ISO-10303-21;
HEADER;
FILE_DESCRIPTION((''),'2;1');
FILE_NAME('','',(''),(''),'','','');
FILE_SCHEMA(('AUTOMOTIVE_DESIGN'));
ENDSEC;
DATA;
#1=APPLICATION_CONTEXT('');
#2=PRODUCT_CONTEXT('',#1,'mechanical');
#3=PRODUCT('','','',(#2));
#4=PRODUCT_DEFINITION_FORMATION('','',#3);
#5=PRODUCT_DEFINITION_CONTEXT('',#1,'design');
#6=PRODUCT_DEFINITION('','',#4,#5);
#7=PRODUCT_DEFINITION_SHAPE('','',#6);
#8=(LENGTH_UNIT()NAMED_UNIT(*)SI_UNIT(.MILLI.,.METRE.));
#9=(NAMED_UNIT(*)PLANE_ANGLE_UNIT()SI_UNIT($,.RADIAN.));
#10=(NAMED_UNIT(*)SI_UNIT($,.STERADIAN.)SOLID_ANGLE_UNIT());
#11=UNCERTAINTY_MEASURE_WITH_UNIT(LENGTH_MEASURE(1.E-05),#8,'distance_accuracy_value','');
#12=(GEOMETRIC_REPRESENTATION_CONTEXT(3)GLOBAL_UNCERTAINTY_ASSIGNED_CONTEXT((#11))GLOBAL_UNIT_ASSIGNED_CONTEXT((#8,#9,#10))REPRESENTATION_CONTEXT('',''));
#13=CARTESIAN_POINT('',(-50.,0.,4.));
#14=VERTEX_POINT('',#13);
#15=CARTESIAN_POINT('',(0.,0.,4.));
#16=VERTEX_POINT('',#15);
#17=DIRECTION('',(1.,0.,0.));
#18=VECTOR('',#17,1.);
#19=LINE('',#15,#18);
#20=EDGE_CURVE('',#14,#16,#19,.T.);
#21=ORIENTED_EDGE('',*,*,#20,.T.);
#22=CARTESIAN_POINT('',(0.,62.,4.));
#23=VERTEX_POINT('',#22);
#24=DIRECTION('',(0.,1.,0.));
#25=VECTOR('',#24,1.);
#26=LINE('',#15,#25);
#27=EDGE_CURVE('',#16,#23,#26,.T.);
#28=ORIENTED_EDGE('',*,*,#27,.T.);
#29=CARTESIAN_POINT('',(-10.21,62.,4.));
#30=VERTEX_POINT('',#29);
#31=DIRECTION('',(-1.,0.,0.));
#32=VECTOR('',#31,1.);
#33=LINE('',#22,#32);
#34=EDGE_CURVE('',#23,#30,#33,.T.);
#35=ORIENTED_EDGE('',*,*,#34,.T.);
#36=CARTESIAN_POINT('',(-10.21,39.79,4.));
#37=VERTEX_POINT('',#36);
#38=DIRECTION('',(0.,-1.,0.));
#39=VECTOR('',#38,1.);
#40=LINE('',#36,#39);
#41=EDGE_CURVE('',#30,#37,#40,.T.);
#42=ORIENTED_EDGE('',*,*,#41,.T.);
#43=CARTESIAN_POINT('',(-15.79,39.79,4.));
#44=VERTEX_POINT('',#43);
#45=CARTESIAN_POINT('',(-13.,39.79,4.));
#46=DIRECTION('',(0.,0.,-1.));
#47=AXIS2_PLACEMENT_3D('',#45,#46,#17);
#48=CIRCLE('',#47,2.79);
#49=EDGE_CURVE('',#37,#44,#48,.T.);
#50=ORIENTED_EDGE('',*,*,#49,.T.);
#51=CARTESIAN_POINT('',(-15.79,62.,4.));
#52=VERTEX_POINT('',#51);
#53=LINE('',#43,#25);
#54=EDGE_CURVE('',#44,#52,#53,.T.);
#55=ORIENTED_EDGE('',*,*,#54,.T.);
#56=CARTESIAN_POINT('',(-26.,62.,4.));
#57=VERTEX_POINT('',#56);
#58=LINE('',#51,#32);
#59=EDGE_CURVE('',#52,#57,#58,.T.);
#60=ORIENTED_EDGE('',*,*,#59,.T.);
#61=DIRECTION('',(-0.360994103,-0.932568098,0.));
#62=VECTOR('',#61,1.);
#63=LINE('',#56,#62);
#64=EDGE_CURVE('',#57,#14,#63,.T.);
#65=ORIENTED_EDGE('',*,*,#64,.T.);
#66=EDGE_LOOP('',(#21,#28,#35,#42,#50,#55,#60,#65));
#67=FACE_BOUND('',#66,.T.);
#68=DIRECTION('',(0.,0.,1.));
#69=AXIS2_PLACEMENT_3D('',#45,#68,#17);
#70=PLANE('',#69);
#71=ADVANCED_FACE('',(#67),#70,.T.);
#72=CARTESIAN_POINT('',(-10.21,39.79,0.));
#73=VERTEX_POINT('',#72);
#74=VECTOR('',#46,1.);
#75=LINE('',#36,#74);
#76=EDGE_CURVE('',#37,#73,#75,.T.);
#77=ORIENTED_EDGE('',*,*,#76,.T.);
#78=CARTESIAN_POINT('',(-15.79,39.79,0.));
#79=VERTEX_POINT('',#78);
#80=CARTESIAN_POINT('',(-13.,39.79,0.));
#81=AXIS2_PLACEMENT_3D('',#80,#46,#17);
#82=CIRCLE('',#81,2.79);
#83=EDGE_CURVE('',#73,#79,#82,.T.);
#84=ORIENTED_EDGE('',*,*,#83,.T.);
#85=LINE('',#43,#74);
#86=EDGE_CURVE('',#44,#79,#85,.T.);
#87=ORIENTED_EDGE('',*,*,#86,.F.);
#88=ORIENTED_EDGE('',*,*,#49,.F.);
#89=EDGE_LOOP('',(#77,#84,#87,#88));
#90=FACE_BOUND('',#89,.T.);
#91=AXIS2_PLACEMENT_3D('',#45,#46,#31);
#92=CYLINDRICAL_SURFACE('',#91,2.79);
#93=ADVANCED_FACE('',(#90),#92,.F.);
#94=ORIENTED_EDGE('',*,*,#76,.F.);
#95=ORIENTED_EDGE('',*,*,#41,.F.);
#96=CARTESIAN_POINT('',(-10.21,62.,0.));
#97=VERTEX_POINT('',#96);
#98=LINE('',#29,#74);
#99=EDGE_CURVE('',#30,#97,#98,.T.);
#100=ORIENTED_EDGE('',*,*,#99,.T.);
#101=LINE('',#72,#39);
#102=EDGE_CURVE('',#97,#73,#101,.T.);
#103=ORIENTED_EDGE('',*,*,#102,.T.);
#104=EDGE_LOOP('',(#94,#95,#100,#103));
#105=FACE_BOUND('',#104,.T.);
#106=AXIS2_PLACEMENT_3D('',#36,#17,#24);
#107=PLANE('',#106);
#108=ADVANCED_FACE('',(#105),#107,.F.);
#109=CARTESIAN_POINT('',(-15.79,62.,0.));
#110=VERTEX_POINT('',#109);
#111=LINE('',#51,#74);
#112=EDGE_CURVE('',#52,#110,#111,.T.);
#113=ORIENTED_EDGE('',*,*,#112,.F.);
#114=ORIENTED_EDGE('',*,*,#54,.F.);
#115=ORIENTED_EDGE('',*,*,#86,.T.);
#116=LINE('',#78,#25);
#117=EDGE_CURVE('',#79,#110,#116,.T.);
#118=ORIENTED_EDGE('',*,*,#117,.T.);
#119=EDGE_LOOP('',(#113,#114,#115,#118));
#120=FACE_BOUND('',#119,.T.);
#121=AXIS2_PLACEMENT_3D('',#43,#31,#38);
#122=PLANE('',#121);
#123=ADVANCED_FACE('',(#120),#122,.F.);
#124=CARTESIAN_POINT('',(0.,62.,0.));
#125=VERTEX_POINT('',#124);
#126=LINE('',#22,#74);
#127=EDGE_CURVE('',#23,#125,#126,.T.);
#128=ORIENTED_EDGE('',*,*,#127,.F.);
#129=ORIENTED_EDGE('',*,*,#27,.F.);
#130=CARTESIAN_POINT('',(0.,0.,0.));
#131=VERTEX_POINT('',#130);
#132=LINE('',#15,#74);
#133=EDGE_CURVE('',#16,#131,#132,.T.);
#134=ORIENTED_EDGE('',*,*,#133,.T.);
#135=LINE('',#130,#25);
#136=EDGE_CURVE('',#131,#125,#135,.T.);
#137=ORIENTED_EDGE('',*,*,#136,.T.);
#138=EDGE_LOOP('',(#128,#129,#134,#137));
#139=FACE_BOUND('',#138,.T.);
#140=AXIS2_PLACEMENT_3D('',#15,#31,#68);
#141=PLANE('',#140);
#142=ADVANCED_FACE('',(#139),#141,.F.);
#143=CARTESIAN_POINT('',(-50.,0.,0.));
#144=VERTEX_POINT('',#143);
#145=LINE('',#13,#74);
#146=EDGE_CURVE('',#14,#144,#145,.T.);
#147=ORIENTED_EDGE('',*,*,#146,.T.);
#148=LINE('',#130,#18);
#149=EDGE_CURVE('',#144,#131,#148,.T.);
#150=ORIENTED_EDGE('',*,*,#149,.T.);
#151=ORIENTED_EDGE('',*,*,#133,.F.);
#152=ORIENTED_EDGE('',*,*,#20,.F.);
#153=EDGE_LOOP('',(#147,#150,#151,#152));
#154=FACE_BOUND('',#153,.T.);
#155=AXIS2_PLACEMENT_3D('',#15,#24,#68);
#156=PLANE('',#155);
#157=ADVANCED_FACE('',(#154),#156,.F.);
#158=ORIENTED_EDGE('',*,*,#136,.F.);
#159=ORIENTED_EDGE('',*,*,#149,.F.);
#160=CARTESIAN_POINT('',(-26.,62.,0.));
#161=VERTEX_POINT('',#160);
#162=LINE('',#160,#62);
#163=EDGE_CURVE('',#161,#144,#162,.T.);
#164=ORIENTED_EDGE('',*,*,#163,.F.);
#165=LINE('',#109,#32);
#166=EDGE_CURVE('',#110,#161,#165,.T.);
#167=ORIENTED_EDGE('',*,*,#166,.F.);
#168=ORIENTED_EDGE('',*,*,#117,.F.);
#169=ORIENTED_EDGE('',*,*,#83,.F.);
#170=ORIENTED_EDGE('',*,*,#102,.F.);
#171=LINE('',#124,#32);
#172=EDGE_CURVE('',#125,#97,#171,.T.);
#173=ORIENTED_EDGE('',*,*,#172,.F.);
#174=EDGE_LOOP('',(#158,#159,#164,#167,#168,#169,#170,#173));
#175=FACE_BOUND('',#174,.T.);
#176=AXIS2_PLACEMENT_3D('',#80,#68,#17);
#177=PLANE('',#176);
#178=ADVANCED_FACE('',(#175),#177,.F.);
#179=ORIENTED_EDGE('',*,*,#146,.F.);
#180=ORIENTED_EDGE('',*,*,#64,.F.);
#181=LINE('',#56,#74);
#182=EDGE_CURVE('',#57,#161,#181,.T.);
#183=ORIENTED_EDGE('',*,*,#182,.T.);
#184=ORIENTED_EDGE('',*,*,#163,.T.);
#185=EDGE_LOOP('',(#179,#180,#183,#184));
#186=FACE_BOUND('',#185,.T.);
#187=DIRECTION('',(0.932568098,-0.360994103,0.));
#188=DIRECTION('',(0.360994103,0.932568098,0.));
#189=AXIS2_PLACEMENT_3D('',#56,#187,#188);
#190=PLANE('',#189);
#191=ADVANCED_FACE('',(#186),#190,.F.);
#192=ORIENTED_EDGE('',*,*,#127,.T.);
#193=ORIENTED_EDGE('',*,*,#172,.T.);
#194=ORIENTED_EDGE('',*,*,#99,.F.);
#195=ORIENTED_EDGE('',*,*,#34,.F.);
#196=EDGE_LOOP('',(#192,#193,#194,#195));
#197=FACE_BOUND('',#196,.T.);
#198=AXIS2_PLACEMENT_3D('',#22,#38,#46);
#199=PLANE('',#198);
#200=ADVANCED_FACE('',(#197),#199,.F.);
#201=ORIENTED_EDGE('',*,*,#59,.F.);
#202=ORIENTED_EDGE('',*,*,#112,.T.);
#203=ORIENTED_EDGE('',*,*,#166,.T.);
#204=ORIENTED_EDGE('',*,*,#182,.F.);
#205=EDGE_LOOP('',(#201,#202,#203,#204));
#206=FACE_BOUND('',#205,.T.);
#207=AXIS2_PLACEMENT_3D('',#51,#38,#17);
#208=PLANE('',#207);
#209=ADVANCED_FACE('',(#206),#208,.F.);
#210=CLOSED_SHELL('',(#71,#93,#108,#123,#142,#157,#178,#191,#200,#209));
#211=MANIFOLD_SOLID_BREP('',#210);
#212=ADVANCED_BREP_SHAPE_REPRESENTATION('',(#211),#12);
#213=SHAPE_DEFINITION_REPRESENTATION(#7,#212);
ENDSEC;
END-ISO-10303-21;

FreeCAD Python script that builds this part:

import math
import FreeCAD as App
import Part
import Sketcher
from FreeCAD import Vector
Q = App.Units.Quantity

doc = App.newDocument("Part")
body = doc.addObject("PartDesign::Body", "Body")

sketch1 = body.newObject("Sketcher::SketchObject", "Sketch")
sketch1.AttachmentSupport = (doc.getObject("XY_Plane"), [""])
sketch1.MapMode = "FlatFace"
sketch1.addGeometry([
    Part.LineSegment(Vector(-50, 0, 0), Vector(0, 0, 0)),
    Part.LineSegment(Vector(0, 0, 0), Vector(0, 62, 0)),
    Part.LineSegment(Vector(0, 62, 0), Vector(-10.2, 62, 0)),
    Part.LineSegment(Vector(-10.2, 62, 0), Vector(-10.2, 39.8, 0)),
    Part.ArcOfCircle(Part.Circle(Vector(-13, 39.8, 0), Vector(0, 0, 1), 2.8), math.radians(180), math.radians(360)),
    Part.LineSegment(Vector(-15.8, 39.8, 0), Vector(-15.8, 62, 0)),
    Part.LineSegment(Vector(-15.8, 62, 0), Vector(-26, 62, 0)),
    Part.LineSegment(Vector(-26, 62, 0), Vector(-50, 0, 0)),
], False)
sketch1.addConstraint([
    Sketcher.Constraint("Coincident", 0, 2, 1, 1),
    Sketcher.Constraint("Coincident", 1, 2, 2, 1),
    Sketcher.Constraint("Coincident", 2, 2, 3, 1),
    Sketcher.Constraint("Tangent", 3, 2, 4, 2),
    Sketcher.Constraint("Tangent", 4, 1, 5, 1),
    Sketcher.Constraint("Coincident", 5, 2, 6, 1),
    Sketcher.Constraint("Coincident", 6, 2, 7, 1),
    Sketcher.Constraint("Coincident", 7, 2, 0, 1),
    Sketcher.Constraint("Horizontal", 0),
    Sketcher.Constraint("Vertical", 1),
    Sketcher.Constraint("Horizontal", 2),
    Sketcher.Constraint("Vertical", 3),
    Sketcher.Constraint("Vertical", 5),
    Sketcher.Constraint("Horizontal", 6),
    Sketcher.Constraint("Coincident", 0, 2, -1, 1),
    Sketcher.Constraint("Horizontal", 2, 2, 5, 2),
    Sketcher.Constraint("Equal", 2, 6),
    Sketcher.Constraint("DistanceX", 0, 1, 0, 2, Q("50 mm")),
    Sketcher.Constraint("DistanceY", 1, 1, 1, 2, Q("62 mm")),
    Sketcher.Constraint("Radius", 4, Q("2.79 mm")),
    Sketcher.Constraint("DistanceX", 4, 3, -1, 1, Q("13 mm")),
    Sketcher.Constraint("DistanceY", 3, 2, 3, 1, Q("22.21 mm")),
])
pad1 = body.newObject("PartDesign::Pad", "Pad")
pad1.Profile = sketch1
pad1.Length = 4

doc.recompute()
